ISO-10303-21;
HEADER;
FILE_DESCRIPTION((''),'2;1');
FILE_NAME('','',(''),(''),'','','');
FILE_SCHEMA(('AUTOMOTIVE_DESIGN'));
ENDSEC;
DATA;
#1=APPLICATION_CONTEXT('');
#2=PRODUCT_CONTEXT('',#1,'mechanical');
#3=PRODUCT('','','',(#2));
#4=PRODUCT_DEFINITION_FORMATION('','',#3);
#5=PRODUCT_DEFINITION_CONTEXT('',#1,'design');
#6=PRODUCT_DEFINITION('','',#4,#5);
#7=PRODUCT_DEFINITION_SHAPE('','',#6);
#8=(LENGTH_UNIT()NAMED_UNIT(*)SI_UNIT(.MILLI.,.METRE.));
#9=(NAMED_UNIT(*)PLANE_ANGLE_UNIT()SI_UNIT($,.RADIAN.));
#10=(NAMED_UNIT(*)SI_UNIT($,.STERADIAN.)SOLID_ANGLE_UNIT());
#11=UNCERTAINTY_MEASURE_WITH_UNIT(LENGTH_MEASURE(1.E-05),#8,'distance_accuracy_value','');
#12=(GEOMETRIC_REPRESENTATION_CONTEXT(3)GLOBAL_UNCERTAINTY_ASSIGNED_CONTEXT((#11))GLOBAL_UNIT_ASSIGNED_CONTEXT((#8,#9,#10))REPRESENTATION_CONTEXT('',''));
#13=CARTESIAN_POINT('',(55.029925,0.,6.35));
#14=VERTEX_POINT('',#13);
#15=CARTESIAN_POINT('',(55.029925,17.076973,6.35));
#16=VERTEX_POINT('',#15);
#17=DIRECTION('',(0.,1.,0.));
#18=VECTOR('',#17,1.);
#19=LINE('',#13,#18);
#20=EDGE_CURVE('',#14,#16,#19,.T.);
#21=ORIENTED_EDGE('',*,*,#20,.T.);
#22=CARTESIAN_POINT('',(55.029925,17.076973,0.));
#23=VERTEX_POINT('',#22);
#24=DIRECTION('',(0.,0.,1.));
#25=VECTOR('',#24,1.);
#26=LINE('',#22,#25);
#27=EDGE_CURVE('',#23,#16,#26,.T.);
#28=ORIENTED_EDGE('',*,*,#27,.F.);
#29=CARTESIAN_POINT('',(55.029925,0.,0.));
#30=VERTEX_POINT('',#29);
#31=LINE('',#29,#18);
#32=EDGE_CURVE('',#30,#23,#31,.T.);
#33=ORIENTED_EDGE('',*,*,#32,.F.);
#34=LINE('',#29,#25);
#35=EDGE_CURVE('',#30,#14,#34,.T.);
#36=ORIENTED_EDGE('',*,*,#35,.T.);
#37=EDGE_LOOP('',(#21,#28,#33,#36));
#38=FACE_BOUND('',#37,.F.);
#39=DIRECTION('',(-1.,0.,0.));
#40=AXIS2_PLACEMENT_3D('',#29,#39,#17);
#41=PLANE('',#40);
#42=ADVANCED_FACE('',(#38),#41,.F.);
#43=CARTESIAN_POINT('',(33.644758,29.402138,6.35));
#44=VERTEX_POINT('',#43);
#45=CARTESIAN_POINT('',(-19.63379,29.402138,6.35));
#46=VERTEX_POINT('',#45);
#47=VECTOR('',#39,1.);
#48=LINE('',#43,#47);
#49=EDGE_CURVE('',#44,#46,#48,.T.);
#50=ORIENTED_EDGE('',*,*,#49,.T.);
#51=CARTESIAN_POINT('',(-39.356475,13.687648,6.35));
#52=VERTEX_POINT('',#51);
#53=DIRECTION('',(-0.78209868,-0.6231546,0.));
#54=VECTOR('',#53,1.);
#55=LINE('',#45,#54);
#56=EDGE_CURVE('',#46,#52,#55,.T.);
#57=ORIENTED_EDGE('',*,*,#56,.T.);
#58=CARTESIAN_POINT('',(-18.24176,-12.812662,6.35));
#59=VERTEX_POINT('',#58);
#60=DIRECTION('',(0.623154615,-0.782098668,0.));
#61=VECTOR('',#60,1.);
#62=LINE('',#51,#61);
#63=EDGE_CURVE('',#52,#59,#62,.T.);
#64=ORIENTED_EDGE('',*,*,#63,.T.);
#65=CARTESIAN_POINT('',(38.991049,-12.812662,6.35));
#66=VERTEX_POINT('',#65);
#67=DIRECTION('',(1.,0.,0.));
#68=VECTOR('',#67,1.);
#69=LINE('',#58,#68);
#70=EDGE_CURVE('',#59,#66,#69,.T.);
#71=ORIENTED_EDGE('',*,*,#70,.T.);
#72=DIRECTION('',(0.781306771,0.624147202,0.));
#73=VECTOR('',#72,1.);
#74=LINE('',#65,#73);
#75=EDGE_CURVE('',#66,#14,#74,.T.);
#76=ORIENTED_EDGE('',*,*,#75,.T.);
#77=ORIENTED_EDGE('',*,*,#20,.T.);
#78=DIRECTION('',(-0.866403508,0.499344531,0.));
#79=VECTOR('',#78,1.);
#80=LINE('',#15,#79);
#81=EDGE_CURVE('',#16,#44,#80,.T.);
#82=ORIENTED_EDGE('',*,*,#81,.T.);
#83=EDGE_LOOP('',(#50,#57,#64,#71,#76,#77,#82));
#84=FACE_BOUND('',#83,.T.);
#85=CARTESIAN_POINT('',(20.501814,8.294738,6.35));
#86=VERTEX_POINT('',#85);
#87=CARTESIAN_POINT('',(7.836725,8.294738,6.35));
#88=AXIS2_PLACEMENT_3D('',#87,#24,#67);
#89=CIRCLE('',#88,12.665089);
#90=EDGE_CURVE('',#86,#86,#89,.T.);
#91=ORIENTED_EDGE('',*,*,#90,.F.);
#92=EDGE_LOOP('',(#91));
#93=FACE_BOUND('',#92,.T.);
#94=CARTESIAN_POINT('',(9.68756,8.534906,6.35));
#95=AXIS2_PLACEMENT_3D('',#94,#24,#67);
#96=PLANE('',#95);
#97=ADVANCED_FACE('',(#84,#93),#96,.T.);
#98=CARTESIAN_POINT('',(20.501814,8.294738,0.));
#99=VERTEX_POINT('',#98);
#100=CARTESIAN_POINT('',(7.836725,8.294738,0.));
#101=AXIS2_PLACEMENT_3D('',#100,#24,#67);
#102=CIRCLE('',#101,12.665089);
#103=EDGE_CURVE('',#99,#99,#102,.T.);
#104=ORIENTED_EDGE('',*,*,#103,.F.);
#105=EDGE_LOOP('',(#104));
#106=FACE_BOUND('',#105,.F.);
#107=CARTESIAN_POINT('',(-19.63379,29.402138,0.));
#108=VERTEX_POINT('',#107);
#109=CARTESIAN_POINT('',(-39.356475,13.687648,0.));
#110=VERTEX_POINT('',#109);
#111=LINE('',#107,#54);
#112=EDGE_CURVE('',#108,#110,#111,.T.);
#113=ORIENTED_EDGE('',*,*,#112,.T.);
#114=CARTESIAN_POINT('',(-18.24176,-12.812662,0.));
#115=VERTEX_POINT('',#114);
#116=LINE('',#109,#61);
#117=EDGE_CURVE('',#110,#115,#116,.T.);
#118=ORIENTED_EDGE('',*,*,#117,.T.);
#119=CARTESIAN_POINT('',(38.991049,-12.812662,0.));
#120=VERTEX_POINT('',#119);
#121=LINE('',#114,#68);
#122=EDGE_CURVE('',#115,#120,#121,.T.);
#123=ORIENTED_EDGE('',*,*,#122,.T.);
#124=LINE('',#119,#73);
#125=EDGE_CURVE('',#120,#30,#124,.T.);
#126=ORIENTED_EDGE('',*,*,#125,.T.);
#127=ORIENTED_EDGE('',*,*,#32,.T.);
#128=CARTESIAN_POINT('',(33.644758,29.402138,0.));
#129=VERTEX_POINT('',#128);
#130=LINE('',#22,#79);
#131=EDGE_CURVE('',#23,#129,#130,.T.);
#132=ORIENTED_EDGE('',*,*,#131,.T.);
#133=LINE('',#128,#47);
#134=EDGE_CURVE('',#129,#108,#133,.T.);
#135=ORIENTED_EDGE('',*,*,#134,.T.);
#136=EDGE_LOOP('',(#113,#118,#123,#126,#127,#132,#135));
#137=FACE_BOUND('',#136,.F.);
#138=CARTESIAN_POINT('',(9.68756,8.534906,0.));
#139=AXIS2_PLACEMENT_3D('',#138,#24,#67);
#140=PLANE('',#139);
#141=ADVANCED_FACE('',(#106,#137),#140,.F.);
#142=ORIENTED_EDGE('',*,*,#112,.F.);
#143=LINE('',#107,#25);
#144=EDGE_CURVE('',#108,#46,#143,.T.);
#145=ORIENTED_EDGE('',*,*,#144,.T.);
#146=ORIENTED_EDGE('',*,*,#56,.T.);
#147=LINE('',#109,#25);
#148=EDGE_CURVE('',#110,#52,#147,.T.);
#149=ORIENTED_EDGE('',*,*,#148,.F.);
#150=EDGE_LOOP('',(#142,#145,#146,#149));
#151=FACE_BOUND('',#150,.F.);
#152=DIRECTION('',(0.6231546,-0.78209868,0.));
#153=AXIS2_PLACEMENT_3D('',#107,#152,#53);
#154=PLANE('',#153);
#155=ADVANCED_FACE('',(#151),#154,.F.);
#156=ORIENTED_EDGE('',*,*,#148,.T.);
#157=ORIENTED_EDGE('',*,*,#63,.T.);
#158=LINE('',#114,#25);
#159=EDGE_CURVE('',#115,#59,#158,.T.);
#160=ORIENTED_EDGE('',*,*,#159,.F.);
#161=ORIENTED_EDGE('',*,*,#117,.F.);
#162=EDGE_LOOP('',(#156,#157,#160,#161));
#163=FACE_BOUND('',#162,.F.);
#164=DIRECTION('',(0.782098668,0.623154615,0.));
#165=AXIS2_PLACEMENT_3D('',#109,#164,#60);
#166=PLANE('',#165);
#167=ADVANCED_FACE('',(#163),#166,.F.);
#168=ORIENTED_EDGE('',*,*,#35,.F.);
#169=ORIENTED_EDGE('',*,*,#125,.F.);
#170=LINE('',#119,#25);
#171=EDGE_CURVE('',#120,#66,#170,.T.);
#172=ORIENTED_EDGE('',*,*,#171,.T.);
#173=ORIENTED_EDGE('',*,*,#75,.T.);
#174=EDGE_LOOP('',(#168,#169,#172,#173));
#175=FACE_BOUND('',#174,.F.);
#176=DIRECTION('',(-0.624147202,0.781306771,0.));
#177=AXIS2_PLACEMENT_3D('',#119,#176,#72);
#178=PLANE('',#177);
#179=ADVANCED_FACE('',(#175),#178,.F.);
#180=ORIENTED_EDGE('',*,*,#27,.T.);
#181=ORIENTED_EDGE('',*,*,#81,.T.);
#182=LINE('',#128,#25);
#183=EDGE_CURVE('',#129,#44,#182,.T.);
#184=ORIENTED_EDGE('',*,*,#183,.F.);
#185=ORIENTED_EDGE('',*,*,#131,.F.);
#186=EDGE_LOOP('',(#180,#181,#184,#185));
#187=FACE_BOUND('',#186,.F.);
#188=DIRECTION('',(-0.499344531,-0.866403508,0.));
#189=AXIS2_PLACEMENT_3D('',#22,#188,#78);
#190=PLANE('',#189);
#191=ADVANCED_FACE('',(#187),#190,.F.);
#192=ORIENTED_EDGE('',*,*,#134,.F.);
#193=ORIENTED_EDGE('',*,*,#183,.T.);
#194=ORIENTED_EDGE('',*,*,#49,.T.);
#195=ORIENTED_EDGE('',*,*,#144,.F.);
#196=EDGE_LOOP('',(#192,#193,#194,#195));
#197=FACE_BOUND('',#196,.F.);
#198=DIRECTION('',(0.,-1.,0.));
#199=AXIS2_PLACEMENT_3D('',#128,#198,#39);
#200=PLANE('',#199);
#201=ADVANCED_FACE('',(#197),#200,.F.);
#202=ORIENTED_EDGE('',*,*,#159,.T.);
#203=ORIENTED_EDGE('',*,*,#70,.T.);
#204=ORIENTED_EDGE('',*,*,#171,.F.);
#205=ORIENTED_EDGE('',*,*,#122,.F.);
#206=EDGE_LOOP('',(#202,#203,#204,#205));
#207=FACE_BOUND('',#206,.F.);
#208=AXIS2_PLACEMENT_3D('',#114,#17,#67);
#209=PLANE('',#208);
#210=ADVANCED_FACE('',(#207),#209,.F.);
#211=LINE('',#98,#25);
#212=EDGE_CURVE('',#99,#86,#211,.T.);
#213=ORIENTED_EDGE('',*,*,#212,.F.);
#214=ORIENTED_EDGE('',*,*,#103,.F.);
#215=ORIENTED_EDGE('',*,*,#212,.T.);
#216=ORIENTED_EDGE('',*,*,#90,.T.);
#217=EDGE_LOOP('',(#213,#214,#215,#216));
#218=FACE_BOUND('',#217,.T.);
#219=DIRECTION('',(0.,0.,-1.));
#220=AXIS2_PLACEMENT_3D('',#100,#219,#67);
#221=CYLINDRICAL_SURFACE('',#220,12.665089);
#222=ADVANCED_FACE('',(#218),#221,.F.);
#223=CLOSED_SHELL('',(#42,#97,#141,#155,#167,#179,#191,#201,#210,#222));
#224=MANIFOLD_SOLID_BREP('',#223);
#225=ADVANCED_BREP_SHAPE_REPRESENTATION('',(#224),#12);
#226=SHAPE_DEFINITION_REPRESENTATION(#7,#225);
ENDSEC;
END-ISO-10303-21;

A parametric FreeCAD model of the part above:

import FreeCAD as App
import Part
import Sketcher

V = App.Vector
Q = App.Units.Quantity

doc = App.newDocument("Part")
params = doc.addObject("Spreadsheet::Sheet", "Params")
for row, (alias, value) in enumerate([
    ("pad1_length", "0.25 in"),
], start=1):
    params.set(f"A{row}", alias)
    params.set(f"B{row}", "=" + value)
    params.setAlias(f"B{row}", alias)

body = doc.addObject("PartDesign::Body", "Body")

sketch1 = doc.addObject("Sketcher::SketchObject", "Sketch")
body.addObject(sketch1)
sketch1.AttachmentSupport = (doc.XY_Plane, [""])
sketch1.MapMode = "FlatFace"
sketch1.addGeometry([
    Part.LineSegment(V(33.644758, 29.402138, 0), V(-19.63379, 29.402138, 0)),
    Part.LineSegment(V(-19.63379, 29.402138, 0), V(-39.356475, 13.687648, 0)),
    Part.LineSegment(V(-39.356475, 13.687648, 0), V(-18.24176, -12.812662, 0)),
    Part.LineSegment(V(-18.24176, -12.812662, 0), V(38.991049, -12.812662, 0)),
    Part.LineSegment(V(38.991049, -12.812662, 0), V(55.029925, 0, 0)),
    Part.LineSegment(V(55.029925, 0, 0), V(55.029925, 17.076973, 0)),
    Part.LineSegment(V(55.029925, 17.076973, 0), V(33.644758, 29.402138, 0)),
    Part.Circle(V(7.836725, 8.294738, 0), V(0, 0, 1), 12.665089),
], False)
sketch1.addConstraint([
    Sketcher.Constraint("Coincident", 0, 2, 1, 1),
    Sketcher.Constraint("Coincident", 1, 2, 2, 1),
    Sketcher.Constraint("Coincident", 2, 2, 3, 1),
    Sketcher.Constraint("Coincident", 3, 2, 4, 1),
    Sketcher.Constraint("Coincident", 4, 2, 5, 1),
    Sketcher.Constraint("Coincident", 5, 2, 6, 1),
    Sketcher.Constraint("Coincident", 6, 2, 0, 1),
    Sketcher.Constraint("Horizontal", 0),
    Sketcher.Constraint("Horizontal", 3),
    Sketcher.Constraint("Vertical", 5),
    Sketcher.Constraint("PointOnObject", 4, 2, -1),
    Sketcher.Constraint("Perpendicular", 1, 2),
    Sketcher.Constraint("Diameter", 7, 25.330178),
    Sketcher.Constraint("DistanceY", 7, 3, 0, 2, Q("0.831 in")),
    Sketcher.Constraint("DistanceX", 1, 2, 7, 3, Q("1.858 in")),
    Sketcher.Constraint("DistanceY", 2, 2, 7, 3, Q("0.831 in")),
    Sketcher.Constraint("DistanceX", 7, 3, 4, 2, Q("1.858 in")),
    Sketcher.Constraint("DistanceX", 3, 1, 3, 2, 57.232809),
    Sketcher.Constraint("Distance", 2, 33.883589),
    Sketcher.Constraint("Distance", 4, 20.52827),
    Sketcher.Constraint("DistanceX", 0, 2, 0, 1, 53.278548),
    Sketcher.Constraint("DistanceY", 5, 1, 5, 2, 17.076973),
    Sketcher.Constraint("DistanceY", -1, 1, 7, 3, 8.294738),
    Sketcher.Constraint("DistanceX", 0, 2, -1, 1, 19.63379),
])
pad1 = doc.addObject("PartDesign::Pad", "Pad")
body.addObject(pad1)
pad1.Profile = sketch1
pad1.setExpression("Length", "Params.pad1_length")

doc.recompute()
